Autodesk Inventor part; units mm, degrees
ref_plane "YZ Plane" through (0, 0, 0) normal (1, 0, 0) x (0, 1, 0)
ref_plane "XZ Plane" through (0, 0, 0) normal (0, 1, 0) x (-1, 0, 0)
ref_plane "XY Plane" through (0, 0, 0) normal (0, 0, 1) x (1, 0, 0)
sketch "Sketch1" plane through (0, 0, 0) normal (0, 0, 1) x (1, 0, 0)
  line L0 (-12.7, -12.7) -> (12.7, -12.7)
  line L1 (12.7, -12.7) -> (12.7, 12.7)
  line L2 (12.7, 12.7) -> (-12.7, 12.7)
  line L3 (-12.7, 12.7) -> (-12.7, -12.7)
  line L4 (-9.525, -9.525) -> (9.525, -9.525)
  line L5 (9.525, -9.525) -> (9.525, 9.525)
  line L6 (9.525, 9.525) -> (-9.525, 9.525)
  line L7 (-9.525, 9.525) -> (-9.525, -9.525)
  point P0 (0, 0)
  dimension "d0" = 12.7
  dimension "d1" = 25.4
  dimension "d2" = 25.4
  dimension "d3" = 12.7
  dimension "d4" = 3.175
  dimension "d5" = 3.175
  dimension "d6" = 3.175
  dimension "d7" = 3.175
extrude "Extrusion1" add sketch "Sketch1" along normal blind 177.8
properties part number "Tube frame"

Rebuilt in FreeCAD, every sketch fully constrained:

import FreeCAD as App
import Part
import Sketcher

V = App.Vector
Q = App.Units.Quantity

doc = App.newDocument("Part")
params = doc.addObject("Spreadsheet::Sheet", "Params")
for row, (alias, value) in enumerate([
    ("sketch1_width", "1 in"),
    ("pad1_length", "7 in"),
], start=1):
    params.set(f"A{row}", alias)
    params.set(f"B{row}", "=" + value)
    params.setAlias(f"B{row}", alias)

body = doc.addObject("PartDesign::Body", "Body")

sketch1 = body.newObject("Sketcher::SketchObject", "Sketch")
sketch1.AttachmentSupport = (doc.getObject("XY_Plane"), [""])
sketch1.MapMode = "FlatFace"
sketch1.addGeometry([
    Part.LineSegment(V(-13, 13, 0), V(-13, -13, 0)),
    Part.LineSegment(V(-13, -13, 0), V(13, -13, 0)),
    Part.LineSegment(V(13, -13, 0), V(13, 13, 0)),
    Part.LineSegment(V(13, 13, 0), V(-13, 13, 0)),
    Part.LineSegment(V(10, -10, 0), V(-10, -10, 0)),
    Part.LineSegment(V(-10, -10, 0), V(-10, 10, 0)),
    Part.LineSegment(V(-10, 10, 0), V(10, 10, 0)),
    Part.LineSegment(V(10, 10, 0), V(10, -10, 0)),
], False)
sketch1.addConstraint([
    Sketcher.Constraint("Coincident", 0, 2, 1, 1),
    Sketcher.Constraint("Coincident", 1, 2, 2, 1),
    Sketcher.Constraint("Coincident", 2, 2, 3, 1),
    Sketcher.Constraint("Coincident", 3, 2, 0, 1),
    Sketcher.Constraint("Coincident", 4, 2, 5, 1),
    Sketcher.Constraint("Coincident", 5, 2, 6, 1),
    Sketcher.Constraint("Coincident", 6, 2, 7, 1),
    Sketcher.Constraint("Coincident", 7, 2, 4, 1),
    Sketcher.Constraint("Vertical", 0),
    Sketcher.Constraint("Horizontal", 1),
    Sketcher.Constraint("Vertical", 2),
    Sketcher.Constraint("Horizontal", 3),
    Sketcher.Constraint("Horizontal", 4),
    Sketcher.Constraint("Vertical", 5),
    Sketcher.Constraint("Horizontal", 6),
    Sketcher.Constraint("Vertical", 7),
    Sketcher.Constraint("Symmetric", 0, 2, 2, 2, -1, 1),
    Sketcher.Constraint("Symmetric", 4, 2, 6, 2, -1, 1),
    Sketcher.Constraint("Equal", 3, 0),
    Sketcher.Constraint("Equal", 6, 5),
    Sketcher.Constraint("DistanceX", 1, 1, 1, 2, Q("1 in")),
    Sketcher.Constraint("DistanceX", 0, 2, 4, 2, Q("0.125 in")),
])
sketch1.setExpression("Constraints[20]", "Params.sketch1_width")
pad1 = body.newObject("PartDesign::Pad", "Pad")
pad1.Profile = sketch1
pad1.setExpression("Length", "Params.pad1_length")

doc.recompute()
